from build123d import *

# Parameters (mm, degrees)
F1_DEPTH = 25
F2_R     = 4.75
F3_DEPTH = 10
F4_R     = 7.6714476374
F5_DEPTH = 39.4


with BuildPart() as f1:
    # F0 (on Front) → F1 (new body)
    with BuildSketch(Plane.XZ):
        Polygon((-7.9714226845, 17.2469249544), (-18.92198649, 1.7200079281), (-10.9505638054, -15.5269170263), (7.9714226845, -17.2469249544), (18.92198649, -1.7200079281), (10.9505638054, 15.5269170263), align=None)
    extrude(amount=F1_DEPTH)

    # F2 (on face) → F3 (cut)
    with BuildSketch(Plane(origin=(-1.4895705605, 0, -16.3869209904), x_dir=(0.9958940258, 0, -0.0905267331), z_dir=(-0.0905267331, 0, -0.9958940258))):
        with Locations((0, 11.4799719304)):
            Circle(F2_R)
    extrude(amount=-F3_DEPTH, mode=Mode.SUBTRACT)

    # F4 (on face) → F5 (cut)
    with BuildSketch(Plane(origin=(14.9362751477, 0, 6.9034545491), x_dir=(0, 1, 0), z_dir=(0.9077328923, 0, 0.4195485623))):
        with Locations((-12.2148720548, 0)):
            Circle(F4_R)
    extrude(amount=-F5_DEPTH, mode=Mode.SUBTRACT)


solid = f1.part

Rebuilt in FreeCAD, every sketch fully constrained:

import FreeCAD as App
import Part
import Sketcher


def add_polygon(sketch, points):
    """Adds a closed chain of lines whose ends are joined by coincident constraints."""
    first, n = sketch.GeometryCount, len(points)
    for a, b in zip(points, points[1:] + points[:1]):
        sketch.addGeometry(Part.LineSegment(App.Vector(*a, 0), App.Vector(*b, 0)), False)
    for i in range(n):
        sketch.addConstraint(Sketcher.Constraint("Coincident", first + i, 2, first + (i + 1) % n, 1))

doc = App.newDocument("Part")
body = doc.addObject("PartDesign::Body", "Body")

# Sketch on XZ plane
sketch1 = doc.addObject("Sketcher::SketchObject", "Sketch")
body.addObject(sketch1)
sketch1.AttachmentSupport = (doc.XZ_Plane, [""])
sketch1.MapMode = "FlatFace"
add_polygon(sketch1, [(-8, 17), (-19, 2), (-11, -16), (8, -17), (19, -2), (11, 16)])  # lines 0-5
sketch1.addConstraint(Sketcher.Constraint("Symmetric", 0, 2, 3, 2, -1, 1))
sketch1.addConstraint(Sketcher.Constraint("Symmetric", 1, 2, 4, 2, -1, 1))
sketch1.addConstraint(Sketcher.Constraint("Symmetric", 2, 2, 5, 2, -1, 1))
sketch1.addConstraint(Sketcher.Constraint("Equal", 0, 1))
sketch1.addConstraint(Sketcher.Constraint("Equal", 1, 2))
sketch1.addConstraint(Sketcher.Constraint("Distance", 0, 19.0))
sketch1.addConstraint(Sketcher.Constraint("DistanceX", 0, 2, 2, 2, 26.893409))
sketch1.addConstraint(Sketcher.Constraint("DistanceX", 1, 2, 3, 2, 29.87255))
sketch1.addConstraint(Sketcher.Constraint("DistanceY", 1, 2, 3, 2, 13.806909))
pad1 = doc.addObject("PartDesign::Pad", "Pad")
body.addObject(pad1)
pad1.Profile = sketch1
pad1.Length = 25

# Sketch on an angled plane
sketch2 = doc.addObject("Sketcher::SketchObject", "Sketch001")
body.addObject(sketch2)
sketch2.Placement = App.Placement(App.Vector(-1.489571, 0, -16.386921), App.Rotation(App.Vector(0.995894026, 0, -0.090526733), App.Vector(0, -1, 0), App.Vector(-0.090526733, 0, -0.995894026), "ZXY"))
sketch2.addGeometry(Part.Circle(App.Vector(0, 11.5, 0), App.Vector(0, 0, 1), 4.8), False)
sketch2.addConstraint(Sketcher.Constraint("PointOnObject", 0, 3, -2))
sketch2.addConstraint(Sketcher.Constraint("Diameter", 0, 9.5))
sketch2.addConstraint(Sketcher.Constraint("DistanceY", -1, 1, 0, 3, 11.479972))
pocket1 = doc.addObject("PartDesign::Pocket", "Pocket")
body.addObject(pocket1)
pocket1.Profile = sketch2
pocket1.Length = 10

# Sketch on an angled plane
sketch3 = doc.addObject("Sketcher::SketchObject", "Sketch002")
body.addObject(sketch3)
sketch3.Placement = App.Placement(App.Vector(14.936275, 0, 6.903455), App.Rotation(App.Vector(0, 1, 0), App.Vector(-0.419548562, 0, 0.907732892), App.Vector(0.907732892, 0, 0.419548562), "ZXY"))
sketch3.addGeometry(Part.Circle(App.Vector(-12, 0, 0), App.Vector(0, 0, 1), 8), False)
sketch3.addConstraint(Sketcher.Constraint("PointOnObject", 0, 3, -1))
sketch3.addConstraint(Sketcher.Constraint("Diameter", 0, 15.342895))
sketch3.addConstraint(Sketcher.Constraint("DistanceX", 0, 3, -1, 1, 12.214872))
pocket2 = doc.addObject("PartDesign::Pocket", "Pocket001")
body.addObject(pocket2)
pocket2.Profile = sketch3
pocket2.Length = 39.4

doc.recompute()
